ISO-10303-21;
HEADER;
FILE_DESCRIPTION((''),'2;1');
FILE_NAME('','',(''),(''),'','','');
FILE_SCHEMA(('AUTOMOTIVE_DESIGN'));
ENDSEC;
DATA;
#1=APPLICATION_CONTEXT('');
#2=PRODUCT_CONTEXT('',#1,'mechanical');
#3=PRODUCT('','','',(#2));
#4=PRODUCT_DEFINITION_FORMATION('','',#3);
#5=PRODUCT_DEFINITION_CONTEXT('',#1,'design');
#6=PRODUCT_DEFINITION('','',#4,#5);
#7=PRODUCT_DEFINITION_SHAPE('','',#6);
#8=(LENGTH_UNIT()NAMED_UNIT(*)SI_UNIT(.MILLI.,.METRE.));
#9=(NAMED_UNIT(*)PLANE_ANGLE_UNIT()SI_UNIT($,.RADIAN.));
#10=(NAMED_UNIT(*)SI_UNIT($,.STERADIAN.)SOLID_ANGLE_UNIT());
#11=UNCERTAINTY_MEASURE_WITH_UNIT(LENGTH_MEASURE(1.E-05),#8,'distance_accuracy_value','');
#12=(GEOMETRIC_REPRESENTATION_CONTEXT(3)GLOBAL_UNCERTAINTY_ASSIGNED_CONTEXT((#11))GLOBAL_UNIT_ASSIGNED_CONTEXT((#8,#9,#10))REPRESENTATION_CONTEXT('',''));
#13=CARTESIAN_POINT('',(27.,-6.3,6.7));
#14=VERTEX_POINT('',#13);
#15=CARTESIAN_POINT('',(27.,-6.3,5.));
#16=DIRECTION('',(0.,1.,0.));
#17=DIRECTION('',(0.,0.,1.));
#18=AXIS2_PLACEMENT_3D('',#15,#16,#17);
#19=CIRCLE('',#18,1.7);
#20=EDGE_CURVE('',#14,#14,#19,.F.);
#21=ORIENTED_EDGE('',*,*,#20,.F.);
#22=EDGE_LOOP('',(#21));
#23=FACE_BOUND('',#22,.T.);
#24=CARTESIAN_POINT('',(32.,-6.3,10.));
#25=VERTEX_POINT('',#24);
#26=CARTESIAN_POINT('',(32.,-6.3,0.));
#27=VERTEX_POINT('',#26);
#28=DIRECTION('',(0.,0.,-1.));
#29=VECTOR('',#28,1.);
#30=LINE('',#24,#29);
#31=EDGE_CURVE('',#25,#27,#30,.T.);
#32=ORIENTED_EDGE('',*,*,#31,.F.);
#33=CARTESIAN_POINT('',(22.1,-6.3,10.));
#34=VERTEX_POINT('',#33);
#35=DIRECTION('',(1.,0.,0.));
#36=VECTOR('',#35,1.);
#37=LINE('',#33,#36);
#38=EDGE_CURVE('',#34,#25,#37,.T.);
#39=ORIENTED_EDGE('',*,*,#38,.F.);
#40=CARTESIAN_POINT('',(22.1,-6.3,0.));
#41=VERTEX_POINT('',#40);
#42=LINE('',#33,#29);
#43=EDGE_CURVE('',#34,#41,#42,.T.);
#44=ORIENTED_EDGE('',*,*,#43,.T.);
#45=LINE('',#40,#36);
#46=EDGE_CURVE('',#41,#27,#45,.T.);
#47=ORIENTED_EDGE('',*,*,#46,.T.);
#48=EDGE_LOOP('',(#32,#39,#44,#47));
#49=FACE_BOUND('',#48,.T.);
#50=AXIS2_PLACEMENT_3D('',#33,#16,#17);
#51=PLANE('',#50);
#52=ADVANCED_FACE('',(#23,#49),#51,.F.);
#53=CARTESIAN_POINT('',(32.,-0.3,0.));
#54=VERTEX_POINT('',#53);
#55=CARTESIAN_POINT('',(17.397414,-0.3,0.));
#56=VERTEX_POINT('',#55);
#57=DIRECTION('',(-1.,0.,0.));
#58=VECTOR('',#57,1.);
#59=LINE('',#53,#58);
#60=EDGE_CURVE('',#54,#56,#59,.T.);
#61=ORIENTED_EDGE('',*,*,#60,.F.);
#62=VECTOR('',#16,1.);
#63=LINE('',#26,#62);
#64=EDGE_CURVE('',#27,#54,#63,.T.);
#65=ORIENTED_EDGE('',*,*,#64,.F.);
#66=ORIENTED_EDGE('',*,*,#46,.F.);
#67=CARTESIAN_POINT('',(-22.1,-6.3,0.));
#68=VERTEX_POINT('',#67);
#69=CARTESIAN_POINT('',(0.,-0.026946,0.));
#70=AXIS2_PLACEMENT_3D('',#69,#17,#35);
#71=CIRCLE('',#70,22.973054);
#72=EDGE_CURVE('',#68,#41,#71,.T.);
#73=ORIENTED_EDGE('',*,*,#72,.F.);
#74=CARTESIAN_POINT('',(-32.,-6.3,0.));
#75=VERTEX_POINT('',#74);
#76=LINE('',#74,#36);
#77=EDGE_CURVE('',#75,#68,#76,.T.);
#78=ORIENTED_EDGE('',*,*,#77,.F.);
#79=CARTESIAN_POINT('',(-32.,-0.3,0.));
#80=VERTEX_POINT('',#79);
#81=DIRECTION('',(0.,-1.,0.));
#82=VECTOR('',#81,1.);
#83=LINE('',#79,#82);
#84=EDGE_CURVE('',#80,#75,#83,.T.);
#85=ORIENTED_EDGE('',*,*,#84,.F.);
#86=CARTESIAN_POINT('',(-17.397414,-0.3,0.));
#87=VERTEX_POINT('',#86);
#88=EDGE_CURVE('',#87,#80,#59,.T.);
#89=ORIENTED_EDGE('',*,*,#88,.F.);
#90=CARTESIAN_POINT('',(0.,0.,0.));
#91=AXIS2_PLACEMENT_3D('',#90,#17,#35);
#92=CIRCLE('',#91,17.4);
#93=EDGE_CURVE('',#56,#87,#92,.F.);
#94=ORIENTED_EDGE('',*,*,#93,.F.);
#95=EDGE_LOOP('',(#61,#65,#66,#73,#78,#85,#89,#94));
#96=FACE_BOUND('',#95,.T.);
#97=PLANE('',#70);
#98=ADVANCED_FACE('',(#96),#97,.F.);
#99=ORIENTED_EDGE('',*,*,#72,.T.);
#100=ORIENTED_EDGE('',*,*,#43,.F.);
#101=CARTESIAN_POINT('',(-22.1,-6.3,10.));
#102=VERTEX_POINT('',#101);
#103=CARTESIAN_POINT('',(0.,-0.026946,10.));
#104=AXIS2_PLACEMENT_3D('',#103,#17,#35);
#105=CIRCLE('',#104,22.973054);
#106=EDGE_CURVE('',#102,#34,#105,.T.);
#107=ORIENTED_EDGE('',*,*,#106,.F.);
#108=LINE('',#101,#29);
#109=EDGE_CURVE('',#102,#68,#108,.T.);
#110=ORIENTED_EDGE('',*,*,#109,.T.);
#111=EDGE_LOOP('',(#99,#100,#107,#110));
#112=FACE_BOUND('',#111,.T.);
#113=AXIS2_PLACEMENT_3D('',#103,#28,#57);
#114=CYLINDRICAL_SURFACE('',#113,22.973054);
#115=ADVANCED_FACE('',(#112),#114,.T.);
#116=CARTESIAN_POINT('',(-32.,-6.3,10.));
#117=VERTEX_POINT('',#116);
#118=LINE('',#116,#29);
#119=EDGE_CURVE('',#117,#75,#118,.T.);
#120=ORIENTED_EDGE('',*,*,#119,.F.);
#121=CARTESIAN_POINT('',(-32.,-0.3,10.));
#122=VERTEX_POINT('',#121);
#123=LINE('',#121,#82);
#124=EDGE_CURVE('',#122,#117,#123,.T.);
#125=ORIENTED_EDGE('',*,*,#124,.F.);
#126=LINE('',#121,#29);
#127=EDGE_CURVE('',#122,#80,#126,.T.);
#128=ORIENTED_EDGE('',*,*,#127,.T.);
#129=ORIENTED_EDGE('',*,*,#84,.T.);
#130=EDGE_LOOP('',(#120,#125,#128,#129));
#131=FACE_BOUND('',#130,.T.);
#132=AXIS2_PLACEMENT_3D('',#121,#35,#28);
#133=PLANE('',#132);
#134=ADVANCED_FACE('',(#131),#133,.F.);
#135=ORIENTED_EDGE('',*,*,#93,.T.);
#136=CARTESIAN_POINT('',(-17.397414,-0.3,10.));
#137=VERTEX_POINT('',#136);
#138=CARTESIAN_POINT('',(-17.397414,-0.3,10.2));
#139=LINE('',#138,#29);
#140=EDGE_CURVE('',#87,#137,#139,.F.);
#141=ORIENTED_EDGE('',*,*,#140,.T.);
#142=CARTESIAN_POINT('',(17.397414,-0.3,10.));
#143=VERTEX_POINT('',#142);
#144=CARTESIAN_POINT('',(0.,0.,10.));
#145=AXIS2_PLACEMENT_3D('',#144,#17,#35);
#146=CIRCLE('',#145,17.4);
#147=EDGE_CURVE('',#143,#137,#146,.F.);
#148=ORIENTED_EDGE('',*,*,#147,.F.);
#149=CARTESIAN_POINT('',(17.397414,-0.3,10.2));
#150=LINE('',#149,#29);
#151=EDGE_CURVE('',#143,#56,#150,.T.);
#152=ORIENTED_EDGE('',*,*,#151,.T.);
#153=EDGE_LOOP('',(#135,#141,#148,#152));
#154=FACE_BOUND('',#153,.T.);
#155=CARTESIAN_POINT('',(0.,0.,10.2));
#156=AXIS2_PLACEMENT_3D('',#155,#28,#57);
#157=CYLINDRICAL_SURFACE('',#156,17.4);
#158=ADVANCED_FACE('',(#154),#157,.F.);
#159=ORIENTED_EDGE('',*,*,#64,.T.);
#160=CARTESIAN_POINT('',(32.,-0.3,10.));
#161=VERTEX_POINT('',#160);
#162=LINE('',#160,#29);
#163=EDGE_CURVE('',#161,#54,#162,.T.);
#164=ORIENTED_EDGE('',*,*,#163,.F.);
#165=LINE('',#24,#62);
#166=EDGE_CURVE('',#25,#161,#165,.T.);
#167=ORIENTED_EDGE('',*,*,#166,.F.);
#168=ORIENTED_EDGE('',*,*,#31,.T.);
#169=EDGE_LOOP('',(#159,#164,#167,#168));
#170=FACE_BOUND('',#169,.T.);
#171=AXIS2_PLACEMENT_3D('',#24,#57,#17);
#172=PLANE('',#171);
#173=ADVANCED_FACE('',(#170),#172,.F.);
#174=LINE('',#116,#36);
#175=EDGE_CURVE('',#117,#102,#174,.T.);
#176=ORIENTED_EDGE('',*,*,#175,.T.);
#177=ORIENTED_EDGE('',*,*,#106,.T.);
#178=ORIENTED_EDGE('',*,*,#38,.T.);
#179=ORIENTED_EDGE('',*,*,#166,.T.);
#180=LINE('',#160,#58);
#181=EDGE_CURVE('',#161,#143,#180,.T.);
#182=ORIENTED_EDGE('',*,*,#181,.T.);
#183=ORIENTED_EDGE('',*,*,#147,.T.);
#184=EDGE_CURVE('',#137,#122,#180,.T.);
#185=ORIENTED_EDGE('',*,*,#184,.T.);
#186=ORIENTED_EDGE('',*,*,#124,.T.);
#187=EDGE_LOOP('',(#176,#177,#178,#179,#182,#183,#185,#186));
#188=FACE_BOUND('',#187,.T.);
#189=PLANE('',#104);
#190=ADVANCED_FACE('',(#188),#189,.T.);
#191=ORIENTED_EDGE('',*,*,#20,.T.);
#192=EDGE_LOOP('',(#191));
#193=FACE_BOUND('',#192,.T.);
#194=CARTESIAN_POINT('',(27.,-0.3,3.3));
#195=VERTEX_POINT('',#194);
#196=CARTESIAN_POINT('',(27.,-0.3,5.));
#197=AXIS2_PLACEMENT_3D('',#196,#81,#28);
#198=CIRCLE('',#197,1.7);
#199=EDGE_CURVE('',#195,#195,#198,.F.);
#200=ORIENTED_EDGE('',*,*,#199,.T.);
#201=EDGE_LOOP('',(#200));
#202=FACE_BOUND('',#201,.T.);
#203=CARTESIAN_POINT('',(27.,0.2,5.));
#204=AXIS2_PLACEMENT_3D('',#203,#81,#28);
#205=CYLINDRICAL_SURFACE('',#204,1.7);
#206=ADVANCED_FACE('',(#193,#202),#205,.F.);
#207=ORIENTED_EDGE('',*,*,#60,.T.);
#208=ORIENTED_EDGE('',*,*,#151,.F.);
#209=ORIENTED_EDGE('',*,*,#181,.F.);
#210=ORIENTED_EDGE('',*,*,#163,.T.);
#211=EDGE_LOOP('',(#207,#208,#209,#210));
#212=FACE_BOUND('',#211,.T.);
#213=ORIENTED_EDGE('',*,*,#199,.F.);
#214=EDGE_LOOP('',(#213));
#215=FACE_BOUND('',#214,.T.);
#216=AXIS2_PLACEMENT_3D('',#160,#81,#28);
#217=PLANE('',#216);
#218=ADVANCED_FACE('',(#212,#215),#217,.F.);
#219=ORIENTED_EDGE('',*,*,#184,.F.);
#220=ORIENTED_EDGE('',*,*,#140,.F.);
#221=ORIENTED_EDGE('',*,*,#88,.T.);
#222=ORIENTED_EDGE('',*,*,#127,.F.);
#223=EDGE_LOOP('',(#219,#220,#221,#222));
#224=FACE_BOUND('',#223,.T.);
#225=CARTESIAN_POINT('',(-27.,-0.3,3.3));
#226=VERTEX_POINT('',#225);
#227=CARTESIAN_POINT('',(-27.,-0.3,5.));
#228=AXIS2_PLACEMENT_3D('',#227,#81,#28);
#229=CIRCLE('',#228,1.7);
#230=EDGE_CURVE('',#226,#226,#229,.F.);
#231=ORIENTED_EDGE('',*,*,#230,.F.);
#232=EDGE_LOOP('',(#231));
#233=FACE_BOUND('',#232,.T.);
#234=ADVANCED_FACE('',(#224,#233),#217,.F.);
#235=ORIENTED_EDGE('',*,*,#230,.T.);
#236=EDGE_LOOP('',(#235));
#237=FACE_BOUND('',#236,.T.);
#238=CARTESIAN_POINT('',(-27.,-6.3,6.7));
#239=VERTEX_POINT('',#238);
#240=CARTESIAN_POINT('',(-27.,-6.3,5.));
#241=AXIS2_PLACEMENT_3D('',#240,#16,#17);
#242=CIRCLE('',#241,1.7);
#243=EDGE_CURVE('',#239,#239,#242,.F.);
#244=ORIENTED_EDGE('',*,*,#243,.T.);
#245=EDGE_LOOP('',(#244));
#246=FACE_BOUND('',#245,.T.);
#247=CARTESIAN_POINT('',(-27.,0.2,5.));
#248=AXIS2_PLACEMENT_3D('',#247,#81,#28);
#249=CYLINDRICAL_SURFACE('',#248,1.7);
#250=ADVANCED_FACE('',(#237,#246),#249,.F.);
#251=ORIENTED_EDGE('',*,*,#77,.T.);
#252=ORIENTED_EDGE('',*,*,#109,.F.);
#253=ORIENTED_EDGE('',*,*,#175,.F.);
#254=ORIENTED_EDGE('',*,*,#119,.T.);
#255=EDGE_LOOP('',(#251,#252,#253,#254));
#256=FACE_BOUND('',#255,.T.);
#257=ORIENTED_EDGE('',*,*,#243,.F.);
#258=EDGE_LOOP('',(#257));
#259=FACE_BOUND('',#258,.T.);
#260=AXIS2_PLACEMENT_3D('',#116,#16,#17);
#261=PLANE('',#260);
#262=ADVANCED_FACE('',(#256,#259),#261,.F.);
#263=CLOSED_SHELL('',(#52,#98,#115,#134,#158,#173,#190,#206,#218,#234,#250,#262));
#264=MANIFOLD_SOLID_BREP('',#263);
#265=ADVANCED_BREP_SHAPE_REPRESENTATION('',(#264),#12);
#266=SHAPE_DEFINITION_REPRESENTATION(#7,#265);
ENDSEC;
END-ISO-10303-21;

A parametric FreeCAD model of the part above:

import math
import FreeCAD as App
import Part
import Sketcher
Q = App.Units.Quantity

doc = App.newDocument("Part")
body = doc.addObject("PartDesign::Body", "Body")

# Sketch on XY plane
sketch1 = body.newObject("Sketcher::SketchObject", "Sketch")
sketch1.AttachmentSupport = (doc.getObject("XY_Plane"), [""])
sketch1.MapMode = "FlatFace"
sketch1.addGeometry(Part.LineSegment(App.Vector(-32, 0, 0), App.Vector(-32, -6, 0)), False)
sketch1.addGeometry(Part.LineSegment(App.Vector(-32, -6, 0), App.Vector(-22, -6, 0)), False)
sketch1.addGeometry(Part.ArcOfCircle(Part.Circle(App.Vector(0, 0, 0), App.Vector(0, 0, 1), 23), math.radians(-164), math.radians(-16)), False)
sketch1.addGeometry(Part.LineSegment(App.Vector(22, -6, 0), App.Vector(32, -6, 0)), False)
sketch1.addGeometry(Part.LineSegment(App.Vector(32, -6, 0), App.Vector(32, 0, 0)), False)
sketch1.addGeometry(Part.LineSegment(App.Vector(32, 0, 0), App.Vector(-32, 0, 0)), False)
sketch1.addConstraint(Sketcher.Constraint("Coincident", 0, 2, 1, 1))
sketch1.addConstraint(Sketcher.Constraint("Coincident", 1, 2, 2, 1))
sketch1.addConstraint(Sketcher.Constraint("Coincident", 2, 2, 3, 1))
sketch1.addConstraint(Sketcher.Constraint("Coincident", 3, 2, 4, 1))
sketch1.addConstraint(Sketcher.Constraint("Coincident", 4, 2, 5, 1))
sketch1.addConstraint(Sketcher.Constraint("Coincident", 5, 2, 0, 1))
sketch1.addConstraint(Sketcher.Constraint("Vertical", 0))
sketch1.addConstraint(Sketcher.Constraint("Horizontal", 1))
sketch1.addConstraint(Sketcher.Constraint("Horizontal", 3))
sketch1.addConstraint(Sketcher.Constraint("Vertical", 4))
sketch1.addConstraint(Sketcher.Constraint("Horizontal", 5))
sketch1.addConstraint(Sketcher.Constraint("Symmetric", 1, 2, 2, 2, -2))
sketch1.addConstraint(Sketcher.Constraint("Equal", 1, 3))
sketch1.addConstraint(Sketcher.Constraint("DistanceX", 5, 2, 5, 1, Q("64 mm")))
sketch1.addConstraint(Sketcher.Constraint("DistanceY", 0, 2, 0, 1, Q("6 mm")))
sketch1.addConstraint(Sketcher.Constraint("DistanceX", 1, 1, 1, 2, Q("9.9 mm")))
sketch1.addConstraint(Sketcher.Constraint("DistanceY", 0, 2, -1, 1, Q("6.3 mm")))
sketch1.addConstraint(Sketcher.Constraint("Radius", 2, Q("22.973054 mm")))
pad1 = body.newObject("PartDesign::Pad", "Pad")
pad1.Profile = sketch1
pad1.Length = 10

# Sketch on XY plane
sketch2 = body.newObject("Sketcher::SketchObject", "Sketch001")
sketch2.AttachmentSupport = (doc.getObject("XY_Plane"), [""])
sketch2.MapMode = "FlatFace"
sketch2.AttachmentOffset = App.Placement(App.Vector(0, 0, -0.2), App.Rotation())
sketch2.addGeometry(Part.Circle(App.Vector(0, 0, 0), App.Vector(0, 0, 1), 17), False)
sketch2.addConstraint(Sketcher.Constraint("Coincident", 0, 3, -1, 1))
sketch2.addConstraint(Sketcher.Constraint("Diameter", 0, Q("34.8 mm")))
pocket1 = body.newObject("PartDesign::Pocket", "Pocket")
pocket1.Profile = sketch2
pocket1.Length = 10.4
pocket1.Reversed = True

# Sketch on XZ plane
sketch3 = body.newObject("Sketcher::SketchObject", "Sketch002")
sketch3.AttachmentSupport = (doc.getObject("XZ_Plane"), [""])
sketch3.MapMode = "FlatFace"
sketch3.AttachmentOffset = App.Placement(App.Vector(0, 0, 6.5), App.Rotation())
sketch3.addGeometry(Part.Circle(App.Vector(-27, 5, 0), App.Vector(0, 0, 1), 1.7), False)
sketch3.addGeometry(Part.Circle(App.Vector(27, 5, 0), App.Vector(0, 0, 1), 1.7), False)
sketch3.addConstraint(Sketcher.Constraint("Equal", 0, 1))
sketch3.addConstraint(Sketcher.Constraint("Symmetric", 0, 3, 1, 3, -2))
sketch3.addConstraint(Sketcher.Constraint("Diameter", 0, Q("3.4 mm")))
sketch3.addConstraint(Sketcher.Constraint("DistanceX", 0, 3, -1, 1, Q("27 mm")))
sketch3.addConstraint(Sketcher.Constraint("DistanceY", -1, 1, 0, 3, Q("5 mm")))
pocket2 = body.newObject("PartDesign::Pocket", "Pocket001")
pocket2.Profile = sketch3
pocket2.Length = 6.7

doc.recompute()
